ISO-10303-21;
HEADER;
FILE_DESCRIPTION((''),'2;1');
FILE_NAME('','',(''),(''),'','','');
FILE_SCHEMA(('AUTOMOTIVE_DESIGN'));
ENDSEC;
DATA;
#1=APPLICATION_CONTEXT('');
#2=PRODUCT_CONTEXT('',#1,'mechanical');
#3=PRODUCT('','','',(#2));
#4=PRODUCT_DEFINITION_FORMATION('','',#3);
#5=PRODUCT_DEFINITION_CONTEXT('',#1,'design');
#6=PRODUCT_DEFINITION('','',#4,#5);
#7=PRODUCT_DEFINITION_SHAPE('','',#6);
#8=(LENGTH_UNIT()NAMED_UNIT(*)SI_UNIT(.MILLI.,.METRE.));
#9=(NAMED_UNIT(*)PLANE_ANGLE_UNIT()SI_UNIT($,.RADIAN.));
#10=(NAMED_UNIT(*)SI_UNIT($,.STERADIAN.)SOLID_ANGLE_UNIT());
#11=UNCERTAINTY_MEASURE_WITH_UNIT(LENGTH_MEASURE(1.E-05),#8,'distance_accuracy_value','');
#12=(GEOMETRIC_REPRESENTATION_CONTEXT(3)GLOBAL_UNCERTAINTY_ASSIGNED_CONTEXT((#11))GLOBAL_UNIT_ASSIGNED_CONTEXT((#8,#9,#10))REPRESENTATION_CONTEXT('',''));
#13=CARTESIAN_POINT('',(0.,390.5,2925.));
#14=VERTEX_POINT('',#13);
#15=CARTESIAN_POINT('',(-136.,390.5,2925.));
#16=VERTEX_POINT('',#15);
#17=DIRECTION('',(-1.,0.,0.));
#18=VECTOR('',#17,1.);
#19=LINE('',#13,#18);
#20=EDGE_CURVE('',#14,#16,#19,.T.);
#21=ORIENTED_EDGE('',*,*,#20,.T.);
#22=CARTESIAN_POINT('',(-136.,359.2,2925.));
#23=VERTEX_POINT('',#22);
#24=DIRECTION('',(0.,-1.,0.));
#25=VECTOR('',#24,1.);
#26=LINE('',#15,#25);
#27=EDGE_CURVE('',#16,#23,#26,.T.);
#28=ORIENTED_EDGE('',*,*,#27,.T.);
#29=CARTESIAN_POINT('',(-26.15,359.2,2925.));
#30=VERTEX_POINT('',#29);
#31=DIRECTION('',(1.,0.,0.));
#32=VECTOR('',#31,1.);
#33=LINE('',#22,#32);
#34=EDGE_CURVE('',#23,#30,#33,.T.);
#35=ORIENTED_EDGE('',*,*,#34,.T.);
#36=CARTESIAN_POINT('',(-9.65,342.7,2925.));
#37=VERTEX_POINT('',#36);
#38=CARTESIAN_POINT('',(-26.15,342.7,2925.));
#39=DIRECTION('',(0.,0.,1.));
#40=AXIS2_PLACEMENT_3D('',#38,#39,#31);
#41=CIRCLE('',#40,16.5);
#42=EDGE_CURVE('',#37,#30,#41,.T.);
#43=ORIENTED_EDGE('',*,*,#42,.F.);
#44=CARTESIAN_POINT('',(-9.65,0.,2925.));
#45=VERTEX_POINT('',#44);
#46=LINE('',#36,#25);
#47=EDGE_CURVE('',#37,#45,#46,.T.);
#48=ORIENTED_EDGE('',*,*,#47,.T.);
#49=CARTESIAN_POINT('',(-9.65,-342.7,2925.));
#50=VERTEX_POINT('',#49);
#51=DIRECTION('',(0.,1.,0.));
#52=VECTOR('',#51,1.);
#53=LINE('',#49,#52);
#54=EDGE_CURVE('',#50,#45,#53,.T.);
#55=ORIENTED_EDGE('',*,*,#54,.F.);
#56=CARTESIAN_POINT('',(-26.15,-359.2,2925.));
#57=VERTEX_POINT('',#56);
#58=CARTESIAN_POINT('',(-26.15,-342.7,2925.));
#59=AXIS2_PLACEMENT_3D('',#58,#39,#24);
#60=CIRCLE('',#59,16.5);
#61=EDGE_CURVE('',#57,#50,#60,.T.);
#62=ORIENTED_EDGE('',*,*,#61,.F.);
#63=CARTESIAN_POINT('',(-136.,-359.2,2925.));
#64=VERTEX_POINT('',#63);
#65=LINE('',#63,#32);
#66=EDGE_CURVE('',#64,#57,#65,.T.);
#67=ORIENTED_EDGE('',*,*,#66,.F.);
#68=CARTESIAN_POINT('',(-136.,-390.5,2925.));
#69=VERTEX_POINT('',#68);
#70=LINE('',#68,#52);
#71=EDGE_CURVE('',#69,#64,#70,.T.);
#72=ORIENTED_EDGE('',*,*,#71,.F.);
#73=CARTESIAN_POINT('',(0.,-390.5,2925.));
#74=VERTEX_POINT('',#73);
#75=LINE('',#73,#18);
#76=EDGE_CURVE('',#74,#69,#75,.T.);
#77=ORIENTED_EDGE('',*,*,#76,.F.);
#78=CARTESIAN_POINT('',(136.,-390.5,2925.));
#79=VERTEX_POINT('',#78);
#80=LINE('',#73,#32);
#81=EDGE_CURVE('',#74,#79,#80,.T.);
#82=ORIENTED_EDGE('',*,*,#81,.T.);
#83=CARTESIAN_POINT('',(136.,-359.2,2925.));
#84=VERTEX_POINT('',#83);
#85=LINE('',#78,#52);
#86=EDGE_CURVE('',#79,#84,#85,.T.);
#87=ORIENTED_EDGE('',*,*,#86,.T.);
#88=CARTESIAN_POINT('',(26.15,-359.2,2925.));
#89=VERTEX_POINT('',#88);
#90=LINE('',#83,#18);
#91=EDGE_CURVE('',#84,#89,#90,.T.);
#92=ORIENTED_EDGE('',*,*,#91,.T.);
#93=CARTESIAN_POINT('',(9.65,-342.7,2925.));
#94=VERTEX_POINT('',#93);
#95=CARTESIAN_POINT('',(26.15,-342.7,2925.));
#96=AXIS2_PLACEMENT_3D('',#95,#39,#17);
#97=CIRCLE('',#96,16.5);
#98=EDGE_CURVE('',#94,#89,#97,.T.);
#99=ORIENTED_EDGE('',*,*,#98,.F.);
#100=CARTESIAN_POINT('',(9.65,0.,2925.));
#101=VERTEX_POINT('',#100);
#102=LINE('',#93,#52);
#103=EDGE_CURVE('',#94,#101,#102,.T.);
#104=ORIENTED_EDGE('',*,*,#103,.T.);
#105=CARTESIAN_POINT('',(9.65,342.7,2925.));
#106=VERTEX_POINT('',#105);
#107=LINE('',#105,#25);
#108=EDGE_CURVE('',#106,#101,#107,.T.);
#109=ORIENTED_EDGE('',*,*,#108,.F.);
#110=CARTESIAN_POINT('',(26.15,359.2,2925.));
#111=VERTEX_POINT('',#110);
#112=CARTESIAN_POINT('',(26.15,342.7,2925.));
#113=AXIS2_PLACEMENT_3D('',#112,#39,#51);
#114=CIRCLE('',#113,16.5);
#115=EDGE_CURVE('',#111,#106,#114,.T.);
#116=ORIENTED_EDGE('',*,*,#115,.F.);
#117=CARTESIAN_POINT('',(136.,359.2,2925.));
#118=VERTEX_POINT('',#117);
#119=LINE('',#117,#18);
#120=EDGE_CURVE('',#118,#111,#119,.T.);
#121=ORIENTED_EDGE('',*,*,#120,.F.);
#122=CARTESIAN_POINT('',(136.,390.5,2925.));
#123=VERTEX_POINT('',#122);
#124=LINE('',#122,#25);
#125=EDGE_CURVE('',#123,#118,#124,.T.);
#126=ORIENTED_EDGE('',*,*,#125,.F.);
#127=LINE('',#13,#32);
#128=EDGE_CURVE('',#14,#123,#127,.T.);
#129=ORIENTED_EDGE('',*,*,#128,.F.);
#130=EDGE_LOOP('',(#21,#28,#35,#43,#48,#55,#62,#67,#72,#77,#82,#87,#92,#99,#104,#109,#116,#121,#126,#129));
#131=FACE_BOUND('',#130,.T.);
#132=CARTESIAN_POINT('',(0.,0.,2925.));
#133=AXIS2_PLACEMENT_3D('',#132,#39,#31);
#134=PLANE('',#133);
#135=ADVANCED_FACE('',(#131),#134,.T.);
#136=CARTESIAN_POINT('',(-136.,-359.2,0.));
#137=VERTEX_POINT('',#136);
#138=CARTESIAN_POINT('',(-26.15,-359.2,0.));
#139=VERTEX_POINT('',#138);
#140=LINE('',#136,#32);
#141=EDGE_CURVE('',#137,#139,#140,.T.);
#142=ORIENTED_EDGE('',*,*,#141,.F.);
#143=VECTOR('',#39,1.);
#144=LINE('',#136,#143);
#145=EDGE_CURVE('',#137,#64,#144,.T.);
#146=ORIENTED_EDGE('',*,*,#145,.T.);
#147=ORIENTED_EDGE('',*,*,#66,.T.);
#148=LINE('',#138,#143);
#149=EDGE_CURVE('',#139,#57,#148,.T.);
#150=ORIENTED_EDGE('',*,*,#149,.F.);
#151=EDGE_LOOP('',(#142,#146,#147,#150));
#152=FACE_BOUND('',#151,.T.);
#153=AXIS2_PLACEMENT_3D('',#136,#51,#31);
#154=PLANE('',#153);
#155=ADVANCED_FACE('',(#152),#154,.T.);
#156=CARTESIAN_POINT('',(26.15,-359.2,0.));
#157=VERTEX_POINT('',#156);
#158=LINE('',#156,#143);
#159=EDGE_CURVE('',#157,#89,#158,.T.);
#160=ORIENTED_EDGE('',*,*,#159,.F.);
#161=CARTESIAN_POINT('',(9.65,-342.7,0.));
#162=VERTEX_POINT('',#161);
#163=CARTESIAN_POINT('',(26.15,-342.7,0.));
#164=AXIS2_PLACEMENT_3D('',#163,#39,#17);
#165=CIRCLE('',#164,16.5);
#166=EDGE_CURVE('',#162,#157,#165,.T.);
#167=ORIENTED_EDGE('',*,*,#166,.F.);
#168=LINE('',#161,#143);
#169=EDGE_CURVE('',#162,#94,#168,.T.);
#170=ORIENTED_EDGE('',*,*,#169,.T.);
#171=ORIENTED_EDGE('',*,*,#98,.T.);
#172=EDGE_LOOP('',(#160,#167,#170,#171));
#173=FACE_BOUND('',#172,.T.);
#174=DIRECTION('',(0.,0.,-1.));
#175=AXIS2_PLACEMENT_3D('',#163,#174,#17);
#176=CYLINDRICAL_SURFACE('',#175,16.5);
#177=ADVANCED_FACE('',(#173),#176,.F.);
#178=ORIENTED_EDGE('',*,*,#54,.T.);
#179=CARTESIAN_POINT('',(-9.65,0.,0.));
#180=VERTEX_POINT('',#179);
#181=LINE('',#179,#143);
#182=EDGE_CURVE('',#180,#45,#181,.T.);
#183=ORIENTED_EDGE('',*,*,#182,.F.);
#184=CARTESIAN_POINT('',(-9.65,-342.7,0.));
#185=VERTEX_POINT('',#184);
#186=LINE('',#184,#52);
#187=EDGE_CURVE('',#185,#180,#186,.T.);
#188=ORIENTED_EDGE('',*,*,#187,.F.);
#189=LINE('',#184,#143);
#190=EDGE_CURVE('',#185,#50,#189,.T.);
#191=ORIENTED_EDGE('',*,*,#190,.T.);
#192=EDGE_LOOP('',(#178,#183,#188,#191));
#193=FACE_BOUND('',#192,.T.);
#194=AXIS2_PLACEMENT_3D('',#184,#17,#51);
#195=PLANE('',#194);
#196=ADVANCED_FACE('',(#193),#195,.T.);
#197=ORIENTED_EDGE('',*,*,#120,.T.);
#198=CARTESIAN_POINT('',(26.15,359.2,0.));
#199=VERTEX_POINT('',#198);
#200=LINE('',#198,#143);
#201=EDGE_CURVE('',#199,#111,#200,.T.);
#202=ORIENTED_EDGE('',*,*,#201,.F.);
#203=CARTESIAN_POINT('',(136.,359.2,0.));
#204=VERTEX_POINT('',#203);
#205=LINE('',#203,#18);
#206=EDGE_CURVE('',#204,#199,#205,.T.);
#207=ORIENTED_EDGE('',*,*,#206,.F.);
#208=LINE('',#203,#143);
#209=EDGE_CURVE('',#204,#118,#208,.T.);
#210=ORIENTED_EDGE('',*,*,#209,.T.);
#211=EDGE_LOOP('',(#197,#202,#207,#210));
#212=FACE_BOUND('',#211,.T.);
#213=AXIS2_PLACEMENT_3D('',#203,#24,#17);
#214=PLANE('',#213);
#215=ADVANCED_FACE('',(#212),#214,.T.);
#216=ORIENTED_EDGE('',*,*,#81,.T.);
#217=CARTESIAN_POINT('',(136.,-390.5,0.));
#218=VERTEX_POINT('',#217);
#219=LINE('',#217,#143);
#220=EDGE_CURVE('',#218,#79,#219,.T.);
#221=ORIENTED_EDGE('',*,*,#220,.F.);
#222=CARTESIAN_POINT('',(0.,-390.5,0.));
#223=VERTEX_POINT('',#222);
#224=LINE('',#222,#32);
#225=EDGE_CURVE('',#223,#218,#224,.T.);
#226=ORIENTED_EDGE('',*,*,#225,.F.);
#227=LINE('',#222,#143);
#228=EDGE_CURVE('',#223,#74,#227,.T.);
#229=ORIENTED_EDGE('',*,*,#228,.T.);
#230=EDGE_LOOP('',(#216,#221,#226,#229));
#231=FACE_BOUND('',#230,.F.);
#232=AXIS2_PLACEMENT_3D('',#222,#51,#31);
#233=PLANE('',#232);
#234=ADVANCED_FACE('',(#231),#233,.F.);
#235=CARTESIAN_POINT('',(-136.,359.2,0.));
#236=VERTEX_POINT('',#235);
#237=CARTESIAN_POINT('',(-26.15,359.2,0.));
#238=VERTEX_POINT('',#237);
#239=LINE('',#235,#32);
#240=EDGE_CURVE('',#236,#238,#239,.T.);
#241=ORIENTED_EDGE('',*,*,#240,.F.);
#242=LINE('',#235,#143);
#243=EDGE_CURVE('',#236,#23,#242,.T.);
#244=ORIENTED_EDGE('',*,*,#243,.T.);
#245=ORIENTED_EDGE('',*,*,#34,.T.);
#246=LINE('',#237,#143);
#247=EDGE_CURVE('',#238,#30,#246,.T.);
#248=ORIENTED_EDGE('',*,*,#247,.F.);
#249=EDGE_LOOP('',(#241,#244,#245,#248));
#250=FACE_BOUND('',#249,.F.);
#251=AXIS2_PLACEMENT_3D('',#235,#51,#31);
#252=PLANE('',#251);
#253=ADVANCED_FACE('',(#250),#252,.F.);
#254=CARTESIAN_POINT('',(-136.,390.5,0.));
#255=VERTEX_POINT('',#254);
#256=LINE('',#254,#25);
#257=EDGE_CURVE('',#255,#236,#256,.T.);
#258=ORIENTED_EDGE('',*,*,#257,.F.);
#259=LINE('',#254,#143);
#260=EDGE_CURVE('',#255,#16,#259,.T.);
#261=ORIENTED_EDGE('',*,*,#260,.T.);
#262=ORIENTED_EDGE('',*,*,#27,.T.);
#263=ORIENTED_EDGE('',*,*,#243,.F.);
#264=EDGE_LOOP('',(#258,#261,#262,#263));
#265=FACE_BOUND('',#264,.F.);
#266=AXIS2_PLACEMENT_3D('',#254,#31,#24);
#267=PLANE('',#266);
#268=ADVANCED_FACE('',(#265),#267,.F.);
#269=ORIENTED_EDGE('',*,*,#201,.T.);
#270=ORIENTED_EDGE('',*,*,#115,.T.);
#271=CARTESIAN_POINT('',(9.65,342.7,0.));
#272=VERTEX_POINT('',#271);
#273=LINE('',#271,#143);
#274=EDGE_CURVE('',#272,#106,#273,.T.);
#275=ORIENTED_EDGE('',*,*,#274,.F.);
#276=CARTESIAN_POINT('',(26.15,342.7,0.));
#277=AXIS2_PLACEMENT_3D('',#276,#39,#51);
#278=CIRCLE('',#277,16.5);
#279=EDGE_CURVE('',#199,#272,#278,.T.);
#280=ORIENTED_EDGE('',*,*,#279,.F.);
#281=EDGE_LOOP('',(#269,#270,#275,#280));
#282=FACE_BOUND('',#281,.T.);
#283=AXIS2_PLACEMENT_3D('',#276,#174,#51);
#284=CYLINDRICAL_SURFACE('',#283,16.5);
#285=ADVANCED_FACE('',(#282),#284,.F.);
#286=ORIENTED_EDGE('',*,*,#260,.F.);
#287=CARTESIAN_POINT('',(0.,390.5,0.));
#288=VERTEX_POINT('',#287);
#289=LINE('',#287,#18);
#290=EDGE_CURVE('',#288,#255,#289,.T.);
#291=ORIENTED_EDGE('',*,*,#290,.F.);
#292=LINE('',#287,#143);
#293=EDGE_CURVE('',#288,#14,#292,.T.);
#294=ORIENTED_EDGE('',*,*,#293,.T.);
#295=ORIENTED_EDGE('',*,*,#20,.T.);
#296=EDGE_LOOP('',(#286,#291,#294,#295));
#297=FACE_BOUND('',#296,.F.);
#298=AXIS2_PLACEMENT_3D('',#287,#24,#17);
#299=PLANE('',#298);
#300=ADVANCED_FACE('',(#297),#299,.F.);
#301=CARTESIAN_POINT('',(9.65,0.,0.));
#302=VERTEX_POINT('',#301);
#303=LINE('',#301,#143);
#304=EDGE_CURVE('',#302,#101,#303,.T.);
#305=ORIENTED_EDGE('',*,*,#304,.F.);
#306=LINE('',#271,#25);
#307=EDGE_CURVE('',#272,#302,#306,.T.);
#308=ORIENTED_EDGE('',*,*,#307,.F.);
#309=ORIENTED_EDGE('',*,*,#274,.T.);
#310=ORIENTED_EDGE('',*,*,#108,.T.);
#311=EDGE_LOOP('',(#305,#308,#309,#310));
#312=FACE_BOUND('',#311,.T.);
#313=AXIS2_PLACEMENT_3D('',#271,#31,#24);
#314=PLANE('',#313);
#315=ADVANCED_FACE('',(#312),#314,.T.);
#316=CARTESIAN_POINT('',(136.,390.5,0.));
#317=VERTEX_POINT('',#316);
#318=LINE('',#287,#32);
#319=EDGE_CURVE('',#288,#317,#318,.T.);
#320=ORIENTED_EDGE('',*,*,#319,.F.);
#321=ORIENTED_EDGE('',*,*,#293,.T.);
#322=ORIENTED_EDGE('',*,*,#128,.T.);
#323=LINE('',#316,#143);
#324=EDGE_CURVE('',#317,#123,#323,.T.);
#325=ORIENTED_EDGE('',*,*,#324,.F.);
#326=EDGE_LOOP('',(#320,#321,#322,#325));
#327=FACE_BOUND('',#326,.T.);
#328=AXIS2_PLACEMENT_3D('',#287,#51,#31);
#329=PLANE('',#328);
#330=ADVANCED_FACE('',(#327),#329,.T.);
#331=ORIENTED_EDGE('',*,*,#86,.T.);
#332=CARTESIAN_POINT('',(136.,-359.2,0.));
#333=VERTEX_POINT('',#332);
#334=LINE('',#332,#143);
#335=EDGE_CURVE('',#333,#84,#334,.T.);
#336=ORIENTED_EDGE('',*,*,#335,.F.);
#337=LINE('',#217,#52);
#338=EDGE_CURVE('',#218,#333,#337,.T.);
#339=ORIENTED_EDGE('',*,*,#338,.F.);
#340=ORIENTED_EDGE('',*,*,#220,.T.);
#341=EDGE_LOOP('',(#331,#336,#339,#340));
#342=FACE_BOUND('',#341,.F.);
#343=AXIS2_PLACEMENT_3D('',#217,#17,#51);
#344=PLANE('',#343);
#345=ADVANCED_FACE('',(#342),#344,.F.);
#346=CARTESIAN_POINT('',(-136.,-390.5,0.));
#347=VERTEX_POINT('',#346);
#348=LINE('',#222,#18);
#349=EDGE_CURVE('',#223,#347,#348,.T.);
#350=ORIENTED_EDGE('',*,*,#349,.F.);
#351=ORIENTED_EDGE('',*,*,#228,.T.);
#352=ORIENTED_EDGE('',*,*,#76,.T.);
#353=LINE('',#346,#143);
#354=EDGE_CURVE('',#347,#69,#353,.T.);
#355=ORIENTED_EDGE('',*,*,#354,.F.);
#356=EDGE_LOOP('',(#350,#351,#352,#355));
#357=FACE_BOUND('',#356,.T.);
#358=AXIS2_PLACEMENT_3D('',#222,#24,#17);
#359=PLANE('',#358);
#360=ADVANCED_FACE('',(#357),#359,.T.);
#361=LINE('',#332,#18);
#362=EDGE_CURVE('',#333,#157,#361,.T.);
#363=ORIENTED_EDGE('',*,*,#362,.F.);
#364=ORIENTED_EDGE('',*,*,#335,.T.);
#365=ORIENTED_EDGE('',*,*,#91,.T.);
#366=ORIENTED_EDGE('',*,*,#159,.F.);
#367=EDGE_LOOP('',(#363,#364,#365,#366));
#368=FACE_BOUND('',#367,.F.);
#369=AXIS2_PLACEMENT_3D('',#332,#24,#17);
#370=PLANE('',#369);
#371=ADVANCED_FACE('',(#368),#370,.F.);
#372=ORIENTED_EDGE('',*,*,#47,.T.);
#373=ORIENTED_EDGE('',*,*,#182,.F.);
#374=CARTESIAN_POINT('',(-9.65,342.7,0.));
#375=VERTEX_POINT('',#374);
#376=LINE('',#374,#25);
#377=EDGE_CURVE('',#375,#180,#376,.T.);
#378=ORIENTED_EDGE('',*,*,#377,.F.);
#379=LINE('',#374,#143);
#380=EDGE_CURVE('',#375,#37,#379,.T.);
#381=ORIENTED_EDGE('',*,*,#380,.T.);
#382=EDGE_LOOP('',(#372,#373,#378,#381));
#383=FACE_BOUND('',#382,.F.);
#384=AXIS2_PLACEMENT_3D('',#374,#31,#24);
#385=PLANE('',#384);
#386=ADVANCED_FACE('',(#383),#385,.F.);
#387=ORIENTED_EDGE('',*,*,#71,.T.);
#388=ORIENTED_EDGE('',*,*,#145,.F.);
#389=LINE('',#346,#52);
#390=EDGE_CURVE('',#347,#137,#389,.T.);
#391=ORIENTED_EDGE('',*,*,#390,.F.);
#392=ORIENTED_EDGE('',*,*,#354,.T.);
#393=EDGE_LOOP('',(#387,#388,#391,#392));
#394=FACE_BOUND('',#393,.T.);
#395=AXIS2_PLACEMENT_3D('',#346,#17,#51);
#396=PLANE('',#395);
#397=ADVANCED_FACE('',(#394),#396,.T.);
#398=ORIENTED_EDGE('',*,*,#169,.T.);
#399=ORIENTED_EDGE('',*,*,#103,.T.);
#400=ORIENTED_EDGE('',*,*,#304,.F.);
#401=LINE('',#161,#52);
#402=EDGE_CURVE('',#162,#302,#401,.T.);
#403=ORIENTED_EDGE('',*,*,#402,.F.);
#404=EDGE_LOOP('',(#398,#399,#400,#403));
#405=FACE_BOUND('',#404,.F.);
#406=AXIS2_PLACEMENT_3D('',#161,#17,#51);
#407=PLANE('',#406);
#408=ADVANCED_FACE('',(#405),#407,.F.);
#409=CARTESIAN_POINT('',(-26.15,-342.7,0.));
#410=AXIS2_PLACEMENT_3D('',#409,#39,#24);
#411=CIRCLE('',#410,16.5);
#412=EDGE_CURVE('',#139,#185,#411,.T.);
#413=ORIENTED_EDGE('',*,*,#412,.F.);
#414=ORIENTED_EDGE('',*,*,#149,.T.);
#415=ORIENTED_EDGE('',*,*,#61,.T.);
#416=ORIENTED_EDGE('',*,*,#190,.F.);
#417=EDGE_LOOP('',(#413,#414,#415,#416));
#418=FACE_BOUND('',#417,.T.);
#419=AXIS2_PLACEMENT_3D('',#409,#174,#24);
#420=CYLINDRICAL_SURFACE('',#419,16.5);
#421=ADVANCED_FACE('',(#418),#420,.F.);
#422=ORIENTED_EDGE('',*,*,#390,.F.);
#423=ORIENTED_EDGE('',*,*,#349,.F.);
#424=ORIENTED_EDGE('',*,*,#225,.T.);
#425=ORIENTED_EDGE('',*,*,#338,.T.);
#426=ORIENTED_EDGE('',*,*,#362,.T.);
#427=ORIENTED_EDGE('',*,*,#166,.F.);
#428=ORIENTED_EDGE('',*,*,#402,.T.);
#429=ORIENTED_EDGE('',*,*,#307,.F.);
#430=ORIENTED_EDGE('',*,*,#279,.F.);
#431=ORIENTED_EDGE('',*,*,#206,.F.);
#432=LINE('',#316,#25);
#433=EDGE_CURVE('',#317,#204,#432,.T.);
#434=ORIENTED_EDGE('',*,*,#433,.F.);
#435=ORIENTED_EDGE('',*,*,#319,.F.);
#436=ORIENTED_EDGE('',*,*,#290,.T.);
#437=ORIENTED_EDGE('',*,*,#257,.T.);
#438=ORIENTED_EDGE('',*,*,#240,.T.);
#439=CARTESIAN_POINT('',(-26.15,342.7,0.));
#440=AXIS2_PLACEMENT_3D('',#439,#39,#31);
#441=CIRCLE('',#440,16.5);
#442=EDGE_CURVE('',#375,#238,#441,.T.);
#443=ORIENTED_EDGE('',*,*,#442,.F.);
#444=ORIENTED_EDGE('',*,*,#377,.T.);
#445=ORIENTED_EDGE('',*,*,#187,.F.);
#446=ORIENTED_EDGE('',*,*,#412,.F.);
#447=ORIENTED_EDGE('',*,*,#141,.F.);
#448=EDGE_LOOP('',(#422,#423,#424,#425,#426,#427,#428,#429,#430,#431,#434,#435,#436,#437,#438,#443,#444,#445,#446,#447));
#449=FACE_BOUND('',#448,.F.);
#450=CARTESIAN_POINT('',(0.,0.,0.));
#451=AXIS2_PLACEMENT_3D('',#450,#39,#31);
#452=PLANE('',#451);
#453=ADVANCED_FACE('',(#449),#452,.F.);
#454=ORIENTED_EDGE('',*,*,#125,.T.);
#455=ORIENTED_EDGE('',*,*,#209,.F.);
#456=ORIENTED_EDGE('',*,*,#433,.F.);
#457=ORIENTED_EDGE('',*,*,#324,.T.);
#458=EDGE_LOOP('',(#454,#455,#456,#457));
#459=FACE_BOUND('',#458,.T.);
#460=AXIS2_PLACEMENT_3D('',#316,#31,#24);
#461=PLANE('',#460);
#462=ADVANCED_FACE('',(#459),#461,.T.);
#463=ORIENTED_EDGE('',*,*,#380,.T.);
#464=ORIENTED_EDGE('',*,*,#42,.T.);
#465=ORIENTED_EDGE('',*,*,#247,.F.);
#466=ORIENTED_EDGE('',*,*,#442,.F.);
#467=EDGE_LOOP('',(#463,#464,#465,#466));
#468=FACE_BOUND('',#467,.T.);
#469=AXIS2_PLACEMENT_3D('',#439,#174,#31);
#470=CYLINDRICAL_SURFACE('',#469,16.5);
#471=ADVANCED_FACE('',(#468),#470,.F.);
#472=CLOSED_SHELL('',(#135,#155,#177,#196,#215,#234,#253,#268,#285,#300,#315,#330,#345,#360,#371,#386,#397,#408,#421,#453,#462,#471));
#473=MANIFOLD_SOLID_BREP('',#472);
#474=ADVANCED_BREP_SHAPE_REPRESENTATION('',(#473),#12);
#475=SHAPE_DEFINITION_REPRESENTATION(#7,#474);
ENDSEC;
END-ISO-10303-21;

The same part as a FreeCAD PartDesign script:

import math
import FreeCAD as App
import Part
import Sketcher

V = App.Vector

doc = App.newDocument("Part")
body = doc.addObject("PartDesign::Body", "Body")

# Sketch on XY plane
sketch1 = body.newObject("Sketcher::SketchObject", "Sketch")
sketch1.AttachmentSupport = (doc.getObject("XY_Plane"), [""])
sketch1.MapMode = "FlatFace"
sketch1.addGeometry(Part.LineSegment(V(-136, -359, 0), V(-136, -390, 0)), False)
sketch1.addGeometry(Part.LineSegment(V(-136, -390, 0), V(136, -390, 0)), False)
sketch1.addGeometry(Part.LineSegment(V(136, -390, 0), V(136, -359, 0)), False)
sketch1.addGeometry(Part.LineSegment(V(136, -359, 0), V(26, -359, 0)), False)
sketch1.addGeometry(Part.ArcOfCircle(Part.Circle(V(26, -343, 0), V(0, 0, 1), 16), math.radians(180), math.radians(270)), False)
sketch1.addGeometry(Part.LineSegment(V(10, -343, 0), V(10, 343, 0)), False)
sketch1.addGeometry(Part.ArcOfCircle(Part.Circle(V(26, 343, 0), V(0, 0, 1), 16), math.radians(90), math.radians(180)), False)
sketch1.addGeometry(Part.LineSegment(V(26, 359, 0), V(136, 359, 0)), False)
sketch1.addGeometry(Part.LineSegment(V(136, 359, 0), V(136, 390, 0)), False)
sketch1.addGeometry(Part.LineSegment(V(136, 390, 0), V(-136, 390, 0)), False)
sketch1.addGeometry(Part.LineSegment(V(-136, 390, 0), V(-136, 359, 0)), False)
sketch1.addGeometry(Part.LineSegment(V(-136, 359, 0), V(-26, 359, 0)), False)
sketch1.addGeometry(Part.ArcOfCircle(Part.Circle(V(-26, 343, 0), V(0, 0, 1), 16), math.radians(0), math.radians(90)), False)
sketch1.addGeometry(Part.LineSegment(V(-10, 343, 0), V(-10, -343, 0)), False)
sketch1.addGeometry(Part.ArcOfCircle(Part.Circle(V(-26, -343, 0), V(0, 0, 1), 16), math.radians(-90), math.radians(0)), False)
sketch1.addGeometry(Part.LineSegment(V(-26, -359, 0), V(-136, -359, 0)), False)
sketch1.addConstraint(Sketcher.Constraint("Coincident", 0, 2, 1, 1))
sketch1.addConstraint(Sketcher.Constraint("Coincident", 1, 2, 2, 1))
sketch1.addConstraint(Sketcher.Constraint("Coincident", 2, 2, 3, 1))
sketch1.addConstraint(Sketcher.Constraint("Tangent", 3, 2, 4, 2))
sketch1.addConstraint(Sketcher.Constraint("Tangent", 4, 1, 5, 1))
sketch1.addConstraint(Sketcher.Constraint("Tangent", 5, 2, 6, 2))
sketch1.addConstraint(Sketcher.Constraint("Tangent", 6, 1, 7, 1))
sketch1.addConstraint(Sketcher.Constraint("Coincident", 7, 2, 8, 1))
sketch1.addConstraint(Sketcher.Constraint("Coincident", 8, 2, 9, 1))
sketch1.addConstraint(Sketcher.Constraint("Coincident", 9, 2, 10, 1))
sketch1.addConstraint(Sketcher.Constraint("Coincident", 10, 2, 11, 1))
sketch1.addConstraint(Sketcher.Constraint("Tangent", 11, 2, 12, 2))
sketch1.addConstraint(Sketcher.Constraint("Tangent", 12, 1, 13, 1))
sketch1.addConstraint(Sketcher.Constraint("Tangent", 13, 2, 14, 2))
sketch1.addConstraint(Sketcher.Constraint("Tangent", 14, 1, 15, 1))
sketch1.addConstraint(Sketcher.Constraint("Coincident", 15, 2, 0, 1))
sketch1.addConstraint(Sketcher.Constraint("Vertical", 0))
sketch1.addConstraint(Sketcher.Constraint("Horizontal", 1))
sketch1.addConstraint(Sketcher.Constraint("Vertical", 2))
sketch1.addConstraint(Sketcher.Constraint("Horizontal", 3))
sketch1.addConstraint(Sketcher.Constraint("Vertical", 5))
sketch1.addConstraint(Sketcher.Constraint("Horizontal", 7))
sketch1.addConstraint(Sketcher.Constraint("Vertical", 8))
sketch1.addConstraint(Sketcher.Constraint("Horizontal", 9))
sketch1.addConstraint(Sketcher.Constraint("Vertical", 10))
sketch1.addConstraint(Sketcher.Constraint("Horizontal", 11))
sketch1.addConstraint(Sketcher.Constraint("Vertical", 13))
sketch1.addConstraint(Sketcher.Constraint("Horizontal", 15))
sketch1.addConstraint(Sketcher.Constraint("Equal", 4, 6))
sketch1.addConstraint(Sketcher.Constraint("Equal", 6, 12))
sketch1.addConstraint(Sketcher.Constraint("Equal", 12, 14))
sketch1.addConstraint(Sketcher.Constraint("Symmetric", 4, 3, 12, 3, -1, 1))
sketch1.addConstraint(Sketcher.Constraint("Symmetric", 0, 2, 8, 2, -1, 1))
sketch1.addConstraint(Sketcher.Constraint("Symmetric", 7, 2, 10, 2, -2))
sketch1.addConstraint(Sketcher.Constraint("Symmetric", 2, 2, 15, 2, -2))
sketch1.addConstraint(Sketcher.Constraint("Radius", 4, 16.5))
sketch1.addConstraint(Sketcher.Constraint("DistanceY", 0, 2, 0, 1, 31.3))
sketch1.addConstraint(Sketcher.Constraint("DistanceX", 0, 2, -1, 1, 136.0))
sketch1.addConstraint(Sketcher.Constraint("DistanceY", 0, 2, -1, 1, 390.5))
sketch1.addConstraint(Sketcher.Constraint("DistanceX", -1, 1, 4, 1, 9.65))
pad1 = body.newObject("PartDesign::Pad", "Pad")
pad1.Profile = sketch1
pad1.Length = 2925

doc.recompute()
